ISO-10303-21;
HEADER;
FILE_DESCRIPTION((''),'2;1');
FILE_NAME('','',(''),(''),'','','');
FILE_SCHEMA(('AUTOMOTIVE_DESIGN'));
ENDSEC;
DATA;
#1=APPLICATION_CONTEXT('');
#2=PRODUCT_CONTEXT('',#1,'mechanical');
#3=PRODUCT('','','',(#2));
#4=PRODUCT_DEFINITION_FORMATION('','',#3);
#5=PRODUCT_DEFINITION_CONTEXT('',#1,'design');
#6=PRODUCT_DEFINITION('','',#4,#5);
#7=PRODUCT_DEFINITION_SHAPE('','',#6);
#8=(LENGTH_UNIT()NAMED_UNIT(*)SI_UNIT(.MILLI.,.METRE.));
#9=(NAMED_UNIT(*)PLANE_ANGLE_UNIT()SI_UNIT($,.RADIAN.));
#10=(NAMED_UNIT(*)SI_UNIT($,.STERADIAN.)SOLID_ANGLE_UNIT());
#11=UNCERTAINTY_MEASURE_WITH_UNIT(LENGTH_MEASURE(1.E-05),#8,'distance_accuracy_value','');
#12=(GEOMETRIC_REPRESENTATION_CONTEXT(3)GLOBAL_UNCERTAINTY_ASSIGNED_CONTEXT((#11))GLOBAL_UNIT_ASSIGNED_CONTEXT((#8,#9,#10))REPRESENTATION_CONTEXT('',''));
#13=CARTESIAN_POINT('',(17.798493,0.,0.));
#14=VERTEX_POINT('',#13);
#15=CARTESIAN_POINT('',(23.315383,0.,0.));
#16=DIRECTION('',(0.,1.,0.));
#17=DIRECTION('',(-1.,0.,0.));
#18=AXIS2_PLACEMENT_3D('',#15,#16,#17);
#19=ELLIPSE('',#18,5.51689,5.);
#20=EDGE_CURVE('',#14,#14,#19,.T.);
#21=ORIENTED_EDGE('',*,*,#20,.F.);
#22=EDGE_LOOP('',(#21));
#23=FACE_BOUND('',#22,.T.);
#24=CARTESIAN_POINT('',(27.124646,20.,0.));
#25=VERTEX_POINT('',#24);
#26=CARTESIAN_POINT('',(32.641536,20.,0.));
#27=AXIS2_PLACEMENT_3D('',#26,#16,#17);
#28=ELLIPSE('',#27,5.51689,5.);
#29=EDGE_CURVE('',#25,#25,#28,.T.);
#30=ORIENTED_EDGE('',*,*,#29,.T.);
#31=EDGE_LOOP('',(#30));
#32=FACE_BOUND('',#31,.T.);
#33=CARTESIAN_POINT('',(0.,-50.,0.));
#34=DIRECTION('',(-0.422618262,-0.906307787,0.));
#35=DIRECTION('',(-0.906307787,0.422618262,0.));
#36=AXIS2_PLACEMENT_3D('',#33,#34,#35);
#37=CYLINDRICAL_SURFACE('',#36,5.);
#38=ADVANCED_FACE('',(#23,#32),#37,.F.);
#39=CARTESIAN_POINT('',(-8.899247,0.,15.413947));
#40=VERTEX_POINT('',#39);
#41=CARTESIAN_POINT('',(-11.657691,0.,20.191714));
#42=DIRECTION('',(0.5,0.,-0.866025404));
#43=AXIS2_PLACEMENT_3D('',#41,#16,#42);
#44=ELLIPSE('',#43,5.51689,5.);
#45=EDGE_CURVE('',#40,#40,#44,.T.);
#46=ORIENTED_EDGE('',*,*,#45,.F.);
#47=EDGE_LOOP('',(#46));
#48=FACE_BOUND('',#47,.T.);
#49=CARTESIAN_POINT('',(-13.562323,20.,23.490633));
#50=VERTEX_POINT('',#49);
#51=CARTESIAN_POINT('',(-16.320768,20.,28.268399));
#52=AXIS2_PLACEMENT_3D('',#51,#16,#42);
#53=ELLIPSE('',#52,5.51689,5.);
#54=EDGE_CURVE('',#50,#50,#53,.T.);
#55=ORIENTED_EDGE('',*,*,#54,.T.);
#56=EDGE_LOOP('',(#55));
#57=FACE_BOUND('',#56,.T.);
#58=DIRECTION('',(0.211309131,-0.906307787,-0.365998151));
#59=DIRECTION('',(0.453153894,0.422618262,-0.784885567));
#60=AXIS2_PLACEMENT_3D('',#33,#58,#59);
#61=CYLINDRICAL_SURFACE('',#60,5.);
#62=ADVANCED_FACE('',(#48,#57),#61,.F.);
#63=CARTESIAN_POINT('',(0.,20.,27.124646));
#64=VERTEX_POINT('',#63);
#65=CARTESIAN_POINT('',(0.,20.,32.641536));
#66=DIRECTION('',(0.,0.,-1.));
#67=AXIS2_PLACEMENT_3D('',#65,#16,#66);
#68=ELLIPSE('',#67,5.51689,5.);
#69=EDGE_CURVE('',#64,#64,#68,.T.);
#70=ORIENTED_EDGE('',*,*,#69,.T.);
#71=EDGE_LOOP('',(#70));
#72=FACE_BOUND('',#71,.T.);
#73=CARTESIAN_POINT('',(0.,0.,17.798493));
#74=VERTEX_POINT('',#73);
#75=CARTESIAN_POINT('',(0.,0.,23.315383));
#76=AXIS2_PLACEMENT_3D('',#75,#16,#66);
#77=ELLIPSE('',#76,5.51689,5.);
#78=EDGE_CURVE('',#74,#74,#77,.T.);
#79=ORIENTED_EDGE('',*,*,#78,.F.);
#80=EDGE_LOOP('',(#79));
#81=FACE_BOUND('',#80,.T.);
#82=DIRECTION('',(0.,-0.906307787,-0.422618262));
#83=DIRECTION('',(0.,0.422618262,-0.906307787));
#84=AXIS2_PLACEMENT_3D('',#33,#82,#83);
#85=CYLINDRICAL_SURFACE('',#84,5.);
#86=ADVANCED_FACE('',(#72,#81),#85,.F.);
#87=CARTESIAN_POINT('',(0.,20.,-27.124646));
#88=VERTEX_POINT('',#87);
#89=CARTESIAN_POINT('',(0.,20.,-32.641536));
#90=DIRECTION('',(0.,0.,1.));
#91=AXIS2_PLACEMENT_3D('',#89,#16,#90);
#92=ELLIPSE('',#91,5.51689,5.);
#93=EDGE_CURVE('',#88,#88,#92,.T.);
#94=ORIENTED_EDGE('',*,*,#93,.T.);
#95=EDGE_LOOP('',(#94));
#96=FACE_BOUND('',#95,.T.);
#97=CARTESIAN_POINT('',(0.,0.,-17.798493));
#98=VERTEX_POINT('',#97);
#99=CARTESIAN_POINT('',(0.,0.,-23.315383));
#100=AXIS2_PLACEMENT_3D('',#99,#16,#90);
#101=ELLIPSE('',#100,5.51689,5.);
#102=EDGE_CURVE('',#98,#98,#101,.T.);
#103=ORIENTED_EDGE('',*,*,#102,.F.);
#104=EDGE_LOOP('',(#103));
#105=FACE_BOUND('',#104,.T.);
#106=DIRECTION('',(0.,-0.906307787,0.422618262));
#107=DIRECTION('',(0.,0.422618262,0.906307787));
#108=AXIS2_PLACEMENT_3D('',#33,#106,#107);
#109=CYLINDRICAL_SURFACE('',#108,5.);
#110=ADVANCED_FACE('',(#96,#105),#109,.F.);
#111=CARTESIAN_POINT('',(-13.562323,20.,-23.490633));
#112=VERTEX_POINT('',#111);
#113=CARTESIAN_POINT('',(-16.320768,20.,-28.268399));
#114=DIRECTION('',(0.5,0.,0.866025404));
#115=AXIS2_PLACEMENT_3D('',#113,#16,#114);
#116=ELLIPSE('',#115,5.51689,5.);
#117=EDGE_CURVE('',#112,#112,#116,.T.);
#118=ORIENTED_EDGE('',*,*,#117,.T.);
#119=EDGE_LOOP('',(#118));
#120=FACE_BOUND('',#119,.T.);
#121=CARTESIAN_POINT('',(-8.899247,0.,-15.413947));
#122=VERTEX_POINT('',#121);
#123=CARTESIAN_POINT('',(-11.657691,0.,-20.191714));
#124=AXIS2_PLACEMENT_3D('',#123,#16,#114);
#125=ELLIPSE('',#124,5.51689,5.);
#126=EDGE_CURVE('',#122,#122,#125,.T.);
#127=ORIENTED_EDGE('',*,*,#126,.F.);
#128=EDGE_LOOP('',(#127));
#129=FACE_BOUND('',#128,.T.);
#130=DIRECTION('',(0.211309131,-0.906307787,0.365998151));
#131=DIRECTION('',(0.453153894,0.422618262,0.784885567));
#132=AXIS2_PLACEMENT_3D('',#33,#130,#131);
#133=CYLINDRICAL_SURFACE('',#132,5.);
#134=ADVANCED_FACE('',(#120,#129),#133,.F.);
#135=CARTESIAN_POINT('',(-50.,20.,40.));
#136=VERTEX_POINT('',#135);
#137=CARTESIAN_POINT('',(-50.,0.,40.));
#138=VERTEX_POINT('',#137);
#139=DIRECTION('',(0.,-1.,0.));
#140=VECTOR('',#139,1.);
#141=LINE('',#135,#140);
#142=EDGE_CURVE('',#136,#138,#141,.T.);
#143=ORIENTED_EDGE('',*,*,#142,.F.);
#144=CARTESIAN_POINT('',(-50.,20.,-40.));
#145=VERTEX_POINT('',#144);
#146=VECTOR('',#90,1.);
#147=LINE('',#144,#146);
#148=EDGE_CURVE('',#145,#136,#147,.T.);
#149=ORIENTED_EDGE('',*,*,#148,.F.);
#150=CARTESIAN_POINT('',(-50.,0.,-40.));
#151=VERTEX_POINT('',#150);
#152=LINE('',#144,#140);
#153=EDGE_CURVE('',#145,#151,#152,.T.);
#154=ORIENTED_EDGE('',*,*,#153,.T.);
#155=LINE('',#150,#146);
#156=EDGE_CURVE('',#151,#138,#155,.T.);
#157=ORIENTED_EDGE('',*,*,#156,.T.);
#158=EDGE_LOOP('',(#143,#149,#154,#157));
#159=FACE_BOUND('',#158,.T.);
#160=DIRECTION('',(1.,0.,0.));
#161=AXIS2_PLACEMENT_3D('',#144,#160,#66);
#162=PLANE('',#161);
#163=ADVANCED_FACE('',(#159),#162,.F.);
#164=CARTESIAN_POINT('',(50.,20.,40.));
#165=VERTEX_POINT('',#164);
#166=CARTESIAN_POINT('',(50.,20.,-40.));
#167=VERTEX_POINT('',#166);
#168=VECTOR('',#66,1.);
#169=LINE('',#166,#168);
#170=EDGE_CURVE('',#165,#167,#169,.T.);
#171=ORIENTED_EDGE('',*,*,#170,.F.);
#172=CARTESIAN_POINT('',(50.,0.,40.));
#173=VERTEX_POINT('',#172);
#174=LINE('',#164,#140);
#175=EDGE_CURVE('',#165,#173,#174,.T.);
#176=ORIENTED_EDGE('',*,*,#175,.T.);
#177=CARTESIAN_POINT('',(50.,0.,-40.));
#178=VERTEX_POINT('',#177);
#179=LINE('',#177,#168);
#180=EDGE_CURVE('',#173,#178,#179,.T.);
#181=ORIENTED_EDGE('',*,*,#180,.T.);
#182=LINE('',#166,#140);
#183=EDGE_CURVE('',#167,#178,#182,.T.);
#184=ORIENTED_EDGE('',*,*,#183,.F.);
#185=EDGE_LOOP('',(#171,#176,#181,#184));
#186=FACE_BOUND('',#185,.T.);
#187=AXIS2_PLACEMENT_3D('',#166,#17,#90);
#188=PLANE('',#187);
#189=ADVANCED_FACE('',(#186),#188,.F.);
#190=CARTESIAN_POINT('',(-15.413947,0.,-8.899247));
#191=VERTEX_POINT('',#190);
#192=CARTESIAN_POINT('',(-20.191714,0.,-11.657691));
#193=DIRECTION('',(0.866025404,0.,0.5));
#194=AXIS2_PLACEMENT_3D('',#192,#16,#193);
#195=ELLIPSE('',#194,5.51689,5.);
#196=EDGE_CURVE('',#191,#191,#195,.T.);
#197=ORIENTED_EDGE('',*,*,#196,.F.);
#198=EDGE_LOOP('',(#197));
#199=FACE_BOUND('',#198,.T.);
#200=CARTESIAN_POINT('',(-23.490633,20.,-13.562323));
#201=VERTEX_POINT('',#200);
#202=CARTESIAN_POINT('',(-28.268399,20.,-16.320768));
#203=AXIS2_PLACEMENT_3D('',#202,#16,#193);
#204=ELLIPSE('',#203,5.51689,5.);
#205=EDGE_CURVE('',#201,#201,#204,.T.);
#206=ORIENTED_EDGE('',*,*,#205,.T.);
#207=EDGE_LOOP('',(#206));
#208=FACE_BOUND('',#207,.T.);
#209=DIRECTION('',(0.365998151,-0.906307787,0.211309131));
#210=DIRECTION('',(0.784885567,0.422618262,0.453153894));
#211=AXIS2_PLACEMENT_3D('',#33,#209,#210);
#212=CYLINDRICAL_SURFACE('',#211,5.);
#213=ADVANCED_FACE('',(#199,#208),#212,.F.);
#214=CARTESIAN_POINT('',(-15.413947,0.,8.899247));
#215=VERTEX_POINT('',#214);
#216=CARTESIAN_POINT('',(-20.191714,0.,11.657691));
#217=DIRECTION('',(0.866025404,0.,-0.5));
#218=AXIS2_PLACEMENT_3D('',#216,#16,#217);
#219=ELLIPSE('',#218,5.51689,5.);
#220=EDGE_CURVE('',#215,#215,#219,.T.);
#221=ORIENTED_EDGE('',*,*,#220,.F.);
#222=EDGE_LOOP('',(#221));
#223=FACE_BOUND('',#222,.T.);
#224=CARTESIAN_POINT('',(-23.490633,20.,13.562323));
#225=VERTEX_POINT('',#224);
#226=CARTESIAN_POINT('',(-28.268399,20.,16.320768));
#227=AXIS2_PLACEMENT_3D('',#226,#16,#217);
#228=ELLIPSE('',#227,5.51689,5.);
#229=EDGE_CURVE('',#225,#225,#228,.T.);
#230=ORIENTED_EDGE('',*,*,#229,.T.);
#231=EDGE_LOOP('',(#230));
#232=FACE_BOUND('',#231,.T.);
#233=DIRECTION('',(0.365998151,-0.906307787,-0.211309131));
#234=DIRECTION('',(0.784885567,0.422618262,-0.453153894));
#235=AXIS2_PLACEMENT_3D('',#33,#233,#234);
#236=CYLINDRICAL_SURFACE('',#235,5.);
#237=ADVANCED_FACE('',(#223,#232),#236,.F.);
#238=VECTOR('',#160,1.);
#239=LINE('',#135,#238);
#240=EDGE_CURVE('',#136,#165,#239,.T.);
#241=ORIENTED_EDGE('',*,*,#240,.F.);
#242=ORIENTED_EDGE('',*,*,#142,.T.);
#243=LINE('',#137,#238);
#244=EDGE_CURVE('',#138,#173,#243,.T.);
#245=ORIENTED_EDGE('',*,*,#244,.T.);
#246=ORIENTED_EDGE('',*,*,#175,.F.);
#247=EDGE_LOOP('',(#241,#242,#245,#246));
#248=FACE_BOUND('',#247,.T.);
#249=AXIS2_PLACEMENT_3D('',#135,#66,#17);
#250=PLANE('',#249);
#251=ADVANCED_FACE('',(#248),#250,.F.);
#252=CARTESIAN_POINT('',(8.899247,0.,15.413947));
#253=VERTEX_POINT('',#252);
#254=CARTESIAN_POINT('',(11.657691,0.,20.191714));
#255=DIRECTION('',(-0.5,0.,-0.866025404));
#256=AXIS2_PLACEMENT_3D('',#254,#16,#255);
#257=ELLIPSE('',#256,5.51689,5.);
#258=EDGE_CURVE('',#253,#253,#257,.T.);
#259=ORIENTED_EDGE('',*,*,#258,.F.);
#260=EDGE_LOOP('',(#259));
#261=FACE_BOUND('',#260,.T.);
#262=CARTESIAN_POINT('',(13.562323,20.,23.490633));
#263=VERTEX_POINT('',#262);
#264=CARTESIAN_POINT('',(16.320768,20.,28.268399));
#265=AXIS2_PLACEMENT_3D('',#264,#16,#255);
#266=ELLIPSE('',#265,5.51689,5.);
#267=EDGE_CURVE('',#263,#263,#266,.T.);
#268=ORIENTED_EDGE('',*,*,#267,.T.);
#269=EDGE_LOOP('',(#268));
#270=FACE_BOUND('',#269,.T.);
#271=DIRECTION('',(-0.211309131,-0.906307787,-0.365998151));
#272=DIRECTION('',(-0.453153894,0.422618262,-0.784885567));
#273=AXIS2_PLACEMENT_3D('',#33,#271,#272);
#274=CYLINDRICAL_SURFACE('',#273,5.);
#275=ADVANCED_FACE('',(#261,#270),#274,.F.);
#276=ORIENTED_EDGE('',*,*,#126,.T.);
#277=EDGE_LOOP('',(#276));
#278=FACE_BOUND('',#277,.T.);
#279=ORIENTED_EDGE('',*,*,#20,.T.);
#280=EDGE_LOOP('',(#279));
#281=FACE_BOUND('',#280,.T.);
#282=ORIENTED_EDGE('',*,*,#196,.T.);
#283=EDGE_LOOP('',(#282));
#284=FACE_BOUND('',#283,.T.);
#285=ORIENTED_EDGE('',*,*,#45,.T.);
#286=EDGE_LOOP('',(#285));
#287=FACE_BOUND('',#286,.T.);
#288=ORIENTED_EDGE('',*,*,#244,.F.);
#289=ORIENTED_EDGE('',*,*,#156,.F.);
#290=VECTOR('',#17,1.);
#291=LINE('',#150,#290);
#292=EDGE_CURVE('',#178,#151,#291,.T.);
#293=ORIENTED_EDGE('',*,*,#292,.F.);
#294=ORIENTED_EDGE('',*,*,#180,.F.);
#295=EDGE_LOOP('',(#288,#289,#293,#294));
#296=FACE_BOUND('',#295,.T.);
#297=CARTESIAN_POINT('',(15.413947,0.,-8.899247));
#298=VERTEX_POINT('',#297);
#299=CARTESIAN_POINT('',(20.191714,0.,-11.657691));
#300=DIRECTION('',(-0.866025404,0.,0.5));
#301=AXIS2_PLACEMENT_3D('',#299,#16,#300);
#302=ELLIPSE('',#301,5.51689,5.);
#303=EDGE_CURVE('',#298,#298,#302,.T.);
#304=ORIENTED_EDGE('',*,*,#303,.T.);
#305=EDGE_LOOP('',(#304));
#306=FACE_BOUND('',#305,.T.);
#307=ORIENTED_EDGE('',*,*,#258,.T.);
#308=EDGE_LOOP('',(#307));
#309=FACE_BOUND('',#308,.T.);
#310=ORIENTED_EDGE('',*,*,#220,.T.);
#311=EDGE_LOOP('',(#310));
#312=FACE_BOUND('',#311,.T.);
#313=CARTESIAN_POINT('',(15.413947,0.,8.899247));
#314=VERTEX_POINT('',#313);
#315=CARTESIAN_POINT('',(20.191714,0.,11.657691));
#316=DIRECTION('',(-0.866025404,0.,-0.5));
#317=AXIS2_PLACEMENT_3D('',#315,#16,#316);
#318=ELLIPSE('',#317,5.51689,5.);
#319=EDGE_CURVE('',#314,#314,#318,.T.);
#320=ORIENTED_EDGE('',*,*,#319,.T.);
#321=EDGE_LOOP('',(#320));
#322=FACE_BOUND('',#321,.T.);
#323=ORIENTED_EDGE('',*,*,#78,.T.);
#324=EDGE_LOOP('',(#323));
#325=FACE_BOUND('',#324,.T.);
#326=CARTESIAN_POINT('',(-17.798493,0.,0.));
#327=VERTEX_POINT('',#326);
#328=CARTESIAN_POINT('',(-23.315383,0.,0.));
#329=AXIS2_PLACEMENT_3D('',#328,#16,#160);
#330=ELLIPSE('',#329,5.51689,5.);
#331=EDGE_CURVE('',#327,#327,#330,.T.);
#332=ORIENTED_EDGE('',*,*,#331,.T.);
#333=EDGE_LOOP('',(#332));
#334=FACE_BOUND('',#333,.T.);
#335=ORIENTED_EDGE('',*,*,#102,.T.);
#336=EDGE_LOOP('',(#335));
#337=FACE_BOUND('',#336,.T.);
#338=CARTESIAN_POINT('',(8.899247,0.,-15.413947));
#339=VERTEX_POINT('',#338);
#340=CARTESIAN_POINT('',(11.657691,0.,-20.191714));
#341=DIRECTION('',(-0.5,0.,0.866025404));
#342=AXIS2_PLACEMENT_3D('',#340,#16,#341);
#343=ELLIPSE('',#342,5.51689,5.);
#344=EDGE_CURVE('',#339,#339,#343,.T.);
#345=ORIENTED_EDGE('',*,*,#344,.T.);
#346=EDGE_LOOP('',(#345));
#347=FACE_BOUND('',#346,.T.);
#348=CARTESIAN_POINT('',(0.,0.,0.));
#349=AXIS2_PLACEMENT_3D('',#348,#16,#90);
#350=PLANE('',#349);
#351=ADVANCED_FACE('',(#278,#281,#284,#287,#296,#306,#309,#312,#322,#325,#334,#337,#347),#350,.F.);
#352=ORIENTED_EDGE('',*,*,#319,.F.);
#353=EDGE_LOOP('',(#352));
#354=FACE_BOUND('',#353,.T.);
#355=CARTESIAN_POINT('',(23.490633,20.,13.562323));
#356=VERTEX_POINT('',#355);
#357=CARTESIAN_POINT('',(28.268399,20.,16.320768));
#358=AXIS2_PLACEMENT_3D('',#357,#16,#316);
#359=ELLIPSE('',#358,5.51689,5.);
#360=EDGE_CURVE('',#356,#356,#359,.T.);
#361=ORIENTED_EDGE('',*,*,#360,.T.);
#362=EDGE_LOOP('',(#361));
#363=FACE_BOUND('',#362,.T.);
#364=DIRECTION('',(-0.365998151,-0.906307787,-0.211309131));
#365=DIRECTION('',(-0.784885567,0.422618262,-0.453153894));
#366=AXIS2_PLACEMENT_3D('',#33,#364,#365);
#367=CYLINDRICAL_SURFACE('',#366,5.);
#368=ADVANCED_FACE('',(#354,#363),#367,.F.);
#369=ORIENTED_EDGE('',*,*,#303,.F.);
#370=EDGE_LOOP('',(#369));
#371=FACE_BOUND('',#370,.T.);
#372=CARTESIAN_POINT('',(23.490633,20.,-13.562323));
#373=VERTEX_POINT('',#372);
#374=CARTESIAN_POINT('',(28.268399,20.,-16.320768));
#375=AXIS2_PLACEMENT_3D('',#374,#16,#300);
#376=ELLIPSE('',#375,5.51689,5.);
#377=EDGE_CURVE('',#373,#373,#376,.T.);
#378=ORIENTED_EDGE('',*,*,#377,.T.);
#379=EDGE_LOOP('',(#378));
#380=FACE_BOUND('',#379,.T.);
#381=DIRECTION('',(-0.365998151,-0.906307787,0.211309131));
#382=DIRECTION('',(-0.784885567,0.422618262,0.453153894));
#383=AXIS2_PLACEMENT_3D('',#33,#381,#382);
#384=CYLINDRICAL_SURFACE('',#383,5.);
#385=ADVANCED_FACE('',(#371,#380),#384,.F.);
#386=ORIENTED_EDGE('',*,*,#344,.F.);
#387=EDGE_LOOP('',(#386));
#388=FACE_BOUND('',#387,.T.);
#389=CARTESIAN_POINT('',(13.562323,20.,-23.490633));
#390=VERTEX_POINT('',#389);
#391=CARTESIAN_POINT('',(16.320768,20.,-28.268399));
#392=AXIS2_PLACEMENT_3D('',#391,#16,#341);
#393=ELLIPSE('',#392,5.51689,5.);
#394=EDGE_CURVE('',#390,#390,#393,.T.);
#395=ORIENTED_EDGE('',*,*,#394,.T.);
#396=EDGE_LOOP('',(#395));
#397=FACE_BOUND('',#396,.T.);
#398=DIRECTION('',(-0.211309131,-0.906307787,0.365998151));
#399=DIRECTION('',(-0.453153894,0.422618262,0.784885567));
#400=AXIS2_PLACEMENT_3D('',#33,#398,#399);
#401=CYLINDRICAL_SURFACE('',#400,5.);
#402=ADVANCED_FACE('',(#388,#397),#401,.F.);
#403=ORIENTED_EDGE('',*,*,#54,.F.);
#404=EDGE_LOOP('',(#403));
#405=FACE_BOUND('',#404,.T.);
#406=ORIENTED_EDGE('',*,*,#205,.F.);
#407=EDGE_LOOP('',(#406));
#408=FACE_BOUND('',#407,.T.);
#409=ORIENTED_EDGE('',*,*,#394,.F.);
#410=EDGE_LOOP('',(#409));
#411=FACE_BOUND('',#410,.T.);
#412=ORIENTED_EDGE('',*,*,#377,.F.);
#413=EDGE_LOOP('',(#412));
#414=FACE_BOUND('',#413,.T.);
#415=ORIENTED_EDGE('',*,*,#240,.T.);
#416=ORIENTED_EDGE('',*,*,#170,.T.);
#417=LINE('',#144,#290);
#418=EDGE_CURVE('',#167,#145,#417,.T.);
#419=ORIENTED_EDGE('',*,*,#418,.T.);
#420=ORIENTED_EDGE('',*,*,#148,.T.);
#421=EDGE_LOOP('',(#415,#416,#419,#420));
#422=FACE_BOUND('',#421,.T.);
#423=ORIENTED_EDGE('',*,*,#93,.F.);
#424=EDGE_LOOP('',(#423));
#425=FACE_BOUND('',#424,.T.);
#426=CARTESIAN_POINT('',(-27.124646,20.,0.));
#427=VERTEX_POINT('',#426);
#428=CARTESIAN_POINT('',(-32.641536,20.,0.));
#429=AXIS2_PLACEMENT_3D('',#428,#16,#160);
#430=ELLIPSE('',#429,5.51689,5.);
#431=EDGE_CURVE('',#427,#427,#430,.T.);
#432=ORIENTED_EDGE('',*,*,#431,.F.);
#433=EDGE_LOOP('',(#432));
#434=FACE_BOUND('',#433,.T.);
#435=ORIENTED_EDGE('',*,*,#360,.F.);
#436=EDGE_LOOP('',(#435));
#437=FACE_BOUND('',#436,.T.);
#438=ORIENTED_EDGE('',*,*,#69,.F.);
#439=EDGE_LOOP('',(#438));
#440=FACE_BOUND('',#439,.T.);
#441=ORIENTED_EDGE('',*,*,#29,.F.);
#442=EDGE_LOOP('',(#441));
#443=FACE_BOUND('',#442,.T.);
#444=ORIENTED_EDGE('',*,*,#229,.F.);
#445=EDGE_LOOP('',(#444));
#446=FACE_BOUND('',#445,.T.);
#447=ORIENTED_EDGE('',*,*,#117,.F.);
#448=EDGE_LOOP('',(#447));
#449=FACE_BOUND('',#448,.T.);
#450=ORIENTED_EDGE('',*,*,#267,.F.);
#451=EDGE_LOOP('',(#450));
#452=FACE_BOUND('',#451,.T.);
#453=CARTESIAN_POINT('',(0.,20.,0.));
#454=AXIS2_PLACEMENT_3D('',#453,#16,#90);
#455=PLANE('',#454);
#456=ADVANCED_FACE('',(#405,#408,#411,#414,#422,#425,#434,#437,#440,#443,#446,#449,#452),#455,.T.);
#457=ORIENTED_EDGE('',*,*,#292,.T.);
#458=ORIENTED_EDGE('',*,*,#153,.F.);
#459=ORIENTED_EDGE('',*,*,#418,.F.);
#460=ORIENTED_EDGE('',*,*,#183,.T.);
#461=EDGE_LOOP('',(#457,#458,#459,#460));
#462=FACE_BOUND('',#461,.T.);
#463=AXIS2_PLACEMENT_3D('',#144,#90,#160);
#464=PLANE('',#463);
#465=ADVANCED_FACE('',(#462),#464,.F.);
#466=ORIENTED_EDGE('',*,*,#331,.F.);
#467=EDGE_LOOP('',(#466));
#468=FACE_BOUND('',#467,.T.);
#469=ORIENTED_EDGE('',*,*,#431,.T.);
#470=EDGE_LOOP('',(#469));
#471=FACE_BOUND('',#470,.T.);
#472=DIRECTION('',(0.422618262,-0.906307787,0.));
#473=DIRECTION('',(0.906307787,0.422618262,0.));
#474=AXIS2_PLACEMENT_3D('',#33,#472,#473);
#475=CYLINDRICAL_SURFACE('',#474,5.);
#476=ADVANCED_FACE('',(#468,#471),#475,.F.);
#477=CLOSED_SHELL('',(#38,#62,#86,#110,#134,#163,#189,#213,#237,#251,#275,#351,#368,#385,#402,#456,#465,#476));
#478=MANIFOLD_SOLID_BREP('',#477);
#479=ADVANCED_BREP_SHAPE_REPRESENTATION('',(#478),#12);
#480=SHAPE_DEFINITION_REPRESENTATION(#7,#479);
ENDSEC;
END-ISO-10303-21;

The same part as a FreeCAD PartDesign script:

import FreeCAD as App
import Part
import Sketcher
from FreeCAD import Vector
Q = App.Units.Quantity

doc = App.newDocument("Part")
params = doc.addObject("Spreadsheet::Sheet", "Params")
for row, (alias, value) in enumerate([
    ("sketch1_width", "100 mm"),
    ("sketch1_height", "80 mm"),
    ("pad1_length", "20 mm"),
    ("sketch2_length", "5 mm"),
    ("groove_angle", "360 deg"),
], start=1):
    params.set(f"A{row}", alias)
    params.set(f"B{row}", "=" + value)
    params.setAlias(f"B{row}", alias)

body = doc.addObject("PartDesign::Body", "Body")

sketch1 = body.newObject("Sketcher::SketchObject", "Sketch")
sketch1.AttachmentSupport = (doc.getObject("XZ_Plane"), [""])
sketch1.MapMode = "FlatFace"
sketch1.addGeometry(Part.LineSegment(Vector(-50, -40, 0), Vector(-50, 40, 0)), False)
sketch1.addGeometry(Part.LineSegment(Vector(-50, 40, 0), Vector(50, 40, 0)), False)
sketch1.addGeometry(Part.LineSegment(Vector(50, 40, 0), Vector(50, -40, 0)), False)
sketch1.addGeometry(Part.LineSegment(Vector(50, -40, 0), Vector(-50, -40, 0)), False)
sketch1.addConstraint(Sketcher.Constraint("Coincident", 0, 2, 1, 1))
sketch1.addConstraint(Sketcher.Constraint("Coincident", 1, 2, 2, 1))
sketch1.addConstraint(Sketcher.Constraint("Coincident", 2, 2, 3, 1))
sketch1.addConstraint(Sketcher.Constraint("Coincident", 3, 2, 0, 1))
sketch1.addConstraint(Sketcher.Constraint("Vertical", 0))
sketch1.addConstraint(Sketcher.Constraint("Horizontal", 1))
sketch1.addConstraint(Sketcher.Constraint("Vertical", 2))
sketch1.addConstraint(Sketcher.Constraint("Horizontal", 3))
sketch1.addConstraint(Sketcher.Constraint("Symmetric", 0, 2, 2, 2, -1, 1))
sketch1.addConstraint(Sketcher.Constraint("DistanceX", 1, 1, 1, 2, Q("100 mm")))
sketch1.addConstraint(Sketcher.Constraint("DistanceY", 0, 1, 0, 2, Q("80 mm")))
sketch1.setExpression("Constraints[9]", "Params.sketch1_width")
sketch1.setExpression("Constraints[10]", "Params.sketch1_height")
pad1 = body.newObject("PartDesign::Pad", "Pad")
pad1.Profile = sketch1
pad1.setExpression("Length", "Params.pad1_length")
pad1.Reversed = True

sketch2 = body.newObject("Sketcher::SketchObject", "Sketch001")
sketch2.AttachmentSupport = (doc.getObject("XY_Plane"), [""])
sketch2.MapMode = "FlatFace"
sketch2.addGeometry(Part.LineSegment(Vector(-33.6, 22.1, 0), Vector(-22.3, -2.1, 0)), False)
sketch2.addGeometry(Part.LineSegment(Vector(-22.3, -2.1, 0), Vector(-17.8, 0, 0)), False)
sketch2.addGeometry(Part.LineSegment(Vector(-17.8, 0, 0), Vector(-29.1, 24.2, 0)), False)
sketch2.addGeometry(Part.LineSegment(Vector(-29.1, 24.2, 0), Vector(-33.6, 22.1, 0)), False)
sketch2.addGeometry(Part.LineSegment(Vector(-22.3, -2.1, 0), Vector(-33.6, 22.1, 0)), True)
sketch2.addConstraint(Sketcher.Constraint("Coincident", 0, 2, 1, 1))
sketch2.addConstraint(Sketcher.Constraint("Coincident", 1, 2, 2, 1))
sketch2.addConstraint(Sketcher.Constraint("Coincident", 2, 2, 3, 1))
sketch2.addConstraint(Sketcher.Constraint("Coincident", 3, 2, 0, 1))
sketch2.addConstraint(Sketcher.Constraint("Coincident", 4, 1, 0, 2))
sketch2.addConstraint(Sketcher.Constraint("Coincident", 4, 2, 3, 2))
sketch2.addConstraint(Sketcher.Constraint("PointOnObject", 1, 2, -1))
sketch2.addConstraint(Sketcher.Constraint("Perpendicular", 0, 1))
sketch2.addConstraint(Sketcher.Constraint("Perpendicular", 1, 2))
sketch2.addConstraint(Sketcher.Constraint("Perpendicular", 2, 3))
sketch2.addConstraint(Sketcher.Constraint("Angle", 0, Q("-65 deg")))
sketch2.addConstraint(Sketcher.Constraint("Distance", 1, Q("5 mm")))
sketch2.addConstraint(Sketcher.Constraint("DistanceY", -1, 1, 3, 2, Q("22.113091 mm")))
sketch2.addConstraint(Sketcher.Constraint("DistanceX", 0, 2, -1, 1, Q("22.330032 mm")))
sketch2.setExpression("Constraints[11]", "Params.sketch2_length")
groove = body.newObject("PartDesign::Groove", "Groove")
groove.Profile = sketch2
groove.ReferenceAxis = (sketch2, ["Axis0"])
groove.setExpression("Angle", "Params.groove_angle")
doc.recompute()

polarpattern = body.newObject("PartDesign::PolarPattern", "PolarPattern")
polarpattern.Originals = [groove]
polarpattern.Axis = (doc.getObject("Y_Axis"), [""])
polarpattern.Angle = 360
polarpattern.Occurrences = 12
body.Tip = polarpattern

doc.recompute()
